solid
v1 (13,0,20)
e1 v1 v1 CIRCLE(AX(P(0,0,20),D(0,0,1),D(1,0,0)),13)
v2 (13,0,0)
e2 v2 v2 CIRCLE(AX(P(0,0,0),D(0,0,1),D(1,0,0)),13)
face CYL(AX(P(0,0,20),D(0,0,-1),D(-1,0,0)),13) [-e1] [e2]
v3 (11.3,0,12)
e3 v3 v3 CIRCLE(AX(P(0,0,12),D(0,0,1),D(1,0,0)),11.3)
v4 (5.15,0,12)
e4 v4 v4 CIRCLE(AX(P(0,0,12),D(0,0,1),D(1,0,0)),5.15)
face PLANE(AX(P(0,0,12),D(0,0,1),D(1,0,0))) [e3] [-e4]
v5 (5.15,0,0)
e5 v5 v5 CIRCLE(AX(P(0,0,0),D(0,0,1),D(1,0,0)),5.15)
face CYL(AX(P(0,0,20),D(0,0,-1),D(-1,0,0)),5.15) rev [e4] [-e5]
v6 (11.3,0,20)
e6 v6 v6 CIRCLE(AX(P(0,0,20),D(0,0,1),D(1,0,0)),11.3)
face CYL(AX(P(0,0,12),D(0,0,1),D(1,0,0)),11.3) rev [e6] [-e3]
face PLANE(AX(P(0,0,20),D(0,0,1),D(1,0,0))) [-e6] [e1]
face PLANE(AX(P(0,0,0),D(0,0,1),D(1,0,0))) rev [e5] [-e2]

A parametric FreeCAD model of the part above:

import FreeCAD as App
import Part
import Sketcher

doc = App.newDocument("Part")
body = doc.addObject("PartDesign::Body", "Body")

sketch1 = body.newObject("Sketcher::SketchObject", "Sketch")
sketch1.AttachmentSupport = (doc.getObject("XY_Plane"), [""])
sketch1.MapMode = "FlatFace"
sketch1.addGeometry([
    Part.Circle(App.Vector(0, 0, 0), App.Vector(0, 0, 1), 13),
    Part.Circle(App.Vector(0, 0, 0), App.Vector(0, 0, 1), 5),
], False)
sketch1.addConstraint([
    Sketcher.Constraint("Coincident", 0, 3, -1, 1),
    Sketcher.Constraint("Coincident", 1, 3, -1, 1),
    Sketcher.Constraint("Diameter", 0, 26.0),
    Sketcher.Constraint("Diameter", 1, 10.3),
])
pad1 = body.newObject("PartDesign::Pad", "Pad")
pad1.Profile = sketch1
pad1.Length = 20

sketch2 = body.newObject("Sketcher::SketchObject", "Sketch001")
sketch2.AttachmentSupport = (doc.getObject("XY_Plane"), [""])
sketch2.MapMode = "FlatFace"
sketch2.AttachmentOffset = App.Placement(App.Vector(0, 0, 20), App.Rotation())
sketch2.addGeometry(Part.Circle(App.Vector(0, 0, 0), App.Vector(0, 0, 1), 11), False)
sketch2.addConstraint([
    Sketcher.Constraint("Coincident", 0, 3, -1, 1),
    Sketcher.Constraint("Diameter", 0, 22.6),
])
pocket1 = body.newObject("PartDesign::Pocket", "Pocket")
pocket1.Profile = sketch2
pocket1.Length = 8

doc.recompute()
